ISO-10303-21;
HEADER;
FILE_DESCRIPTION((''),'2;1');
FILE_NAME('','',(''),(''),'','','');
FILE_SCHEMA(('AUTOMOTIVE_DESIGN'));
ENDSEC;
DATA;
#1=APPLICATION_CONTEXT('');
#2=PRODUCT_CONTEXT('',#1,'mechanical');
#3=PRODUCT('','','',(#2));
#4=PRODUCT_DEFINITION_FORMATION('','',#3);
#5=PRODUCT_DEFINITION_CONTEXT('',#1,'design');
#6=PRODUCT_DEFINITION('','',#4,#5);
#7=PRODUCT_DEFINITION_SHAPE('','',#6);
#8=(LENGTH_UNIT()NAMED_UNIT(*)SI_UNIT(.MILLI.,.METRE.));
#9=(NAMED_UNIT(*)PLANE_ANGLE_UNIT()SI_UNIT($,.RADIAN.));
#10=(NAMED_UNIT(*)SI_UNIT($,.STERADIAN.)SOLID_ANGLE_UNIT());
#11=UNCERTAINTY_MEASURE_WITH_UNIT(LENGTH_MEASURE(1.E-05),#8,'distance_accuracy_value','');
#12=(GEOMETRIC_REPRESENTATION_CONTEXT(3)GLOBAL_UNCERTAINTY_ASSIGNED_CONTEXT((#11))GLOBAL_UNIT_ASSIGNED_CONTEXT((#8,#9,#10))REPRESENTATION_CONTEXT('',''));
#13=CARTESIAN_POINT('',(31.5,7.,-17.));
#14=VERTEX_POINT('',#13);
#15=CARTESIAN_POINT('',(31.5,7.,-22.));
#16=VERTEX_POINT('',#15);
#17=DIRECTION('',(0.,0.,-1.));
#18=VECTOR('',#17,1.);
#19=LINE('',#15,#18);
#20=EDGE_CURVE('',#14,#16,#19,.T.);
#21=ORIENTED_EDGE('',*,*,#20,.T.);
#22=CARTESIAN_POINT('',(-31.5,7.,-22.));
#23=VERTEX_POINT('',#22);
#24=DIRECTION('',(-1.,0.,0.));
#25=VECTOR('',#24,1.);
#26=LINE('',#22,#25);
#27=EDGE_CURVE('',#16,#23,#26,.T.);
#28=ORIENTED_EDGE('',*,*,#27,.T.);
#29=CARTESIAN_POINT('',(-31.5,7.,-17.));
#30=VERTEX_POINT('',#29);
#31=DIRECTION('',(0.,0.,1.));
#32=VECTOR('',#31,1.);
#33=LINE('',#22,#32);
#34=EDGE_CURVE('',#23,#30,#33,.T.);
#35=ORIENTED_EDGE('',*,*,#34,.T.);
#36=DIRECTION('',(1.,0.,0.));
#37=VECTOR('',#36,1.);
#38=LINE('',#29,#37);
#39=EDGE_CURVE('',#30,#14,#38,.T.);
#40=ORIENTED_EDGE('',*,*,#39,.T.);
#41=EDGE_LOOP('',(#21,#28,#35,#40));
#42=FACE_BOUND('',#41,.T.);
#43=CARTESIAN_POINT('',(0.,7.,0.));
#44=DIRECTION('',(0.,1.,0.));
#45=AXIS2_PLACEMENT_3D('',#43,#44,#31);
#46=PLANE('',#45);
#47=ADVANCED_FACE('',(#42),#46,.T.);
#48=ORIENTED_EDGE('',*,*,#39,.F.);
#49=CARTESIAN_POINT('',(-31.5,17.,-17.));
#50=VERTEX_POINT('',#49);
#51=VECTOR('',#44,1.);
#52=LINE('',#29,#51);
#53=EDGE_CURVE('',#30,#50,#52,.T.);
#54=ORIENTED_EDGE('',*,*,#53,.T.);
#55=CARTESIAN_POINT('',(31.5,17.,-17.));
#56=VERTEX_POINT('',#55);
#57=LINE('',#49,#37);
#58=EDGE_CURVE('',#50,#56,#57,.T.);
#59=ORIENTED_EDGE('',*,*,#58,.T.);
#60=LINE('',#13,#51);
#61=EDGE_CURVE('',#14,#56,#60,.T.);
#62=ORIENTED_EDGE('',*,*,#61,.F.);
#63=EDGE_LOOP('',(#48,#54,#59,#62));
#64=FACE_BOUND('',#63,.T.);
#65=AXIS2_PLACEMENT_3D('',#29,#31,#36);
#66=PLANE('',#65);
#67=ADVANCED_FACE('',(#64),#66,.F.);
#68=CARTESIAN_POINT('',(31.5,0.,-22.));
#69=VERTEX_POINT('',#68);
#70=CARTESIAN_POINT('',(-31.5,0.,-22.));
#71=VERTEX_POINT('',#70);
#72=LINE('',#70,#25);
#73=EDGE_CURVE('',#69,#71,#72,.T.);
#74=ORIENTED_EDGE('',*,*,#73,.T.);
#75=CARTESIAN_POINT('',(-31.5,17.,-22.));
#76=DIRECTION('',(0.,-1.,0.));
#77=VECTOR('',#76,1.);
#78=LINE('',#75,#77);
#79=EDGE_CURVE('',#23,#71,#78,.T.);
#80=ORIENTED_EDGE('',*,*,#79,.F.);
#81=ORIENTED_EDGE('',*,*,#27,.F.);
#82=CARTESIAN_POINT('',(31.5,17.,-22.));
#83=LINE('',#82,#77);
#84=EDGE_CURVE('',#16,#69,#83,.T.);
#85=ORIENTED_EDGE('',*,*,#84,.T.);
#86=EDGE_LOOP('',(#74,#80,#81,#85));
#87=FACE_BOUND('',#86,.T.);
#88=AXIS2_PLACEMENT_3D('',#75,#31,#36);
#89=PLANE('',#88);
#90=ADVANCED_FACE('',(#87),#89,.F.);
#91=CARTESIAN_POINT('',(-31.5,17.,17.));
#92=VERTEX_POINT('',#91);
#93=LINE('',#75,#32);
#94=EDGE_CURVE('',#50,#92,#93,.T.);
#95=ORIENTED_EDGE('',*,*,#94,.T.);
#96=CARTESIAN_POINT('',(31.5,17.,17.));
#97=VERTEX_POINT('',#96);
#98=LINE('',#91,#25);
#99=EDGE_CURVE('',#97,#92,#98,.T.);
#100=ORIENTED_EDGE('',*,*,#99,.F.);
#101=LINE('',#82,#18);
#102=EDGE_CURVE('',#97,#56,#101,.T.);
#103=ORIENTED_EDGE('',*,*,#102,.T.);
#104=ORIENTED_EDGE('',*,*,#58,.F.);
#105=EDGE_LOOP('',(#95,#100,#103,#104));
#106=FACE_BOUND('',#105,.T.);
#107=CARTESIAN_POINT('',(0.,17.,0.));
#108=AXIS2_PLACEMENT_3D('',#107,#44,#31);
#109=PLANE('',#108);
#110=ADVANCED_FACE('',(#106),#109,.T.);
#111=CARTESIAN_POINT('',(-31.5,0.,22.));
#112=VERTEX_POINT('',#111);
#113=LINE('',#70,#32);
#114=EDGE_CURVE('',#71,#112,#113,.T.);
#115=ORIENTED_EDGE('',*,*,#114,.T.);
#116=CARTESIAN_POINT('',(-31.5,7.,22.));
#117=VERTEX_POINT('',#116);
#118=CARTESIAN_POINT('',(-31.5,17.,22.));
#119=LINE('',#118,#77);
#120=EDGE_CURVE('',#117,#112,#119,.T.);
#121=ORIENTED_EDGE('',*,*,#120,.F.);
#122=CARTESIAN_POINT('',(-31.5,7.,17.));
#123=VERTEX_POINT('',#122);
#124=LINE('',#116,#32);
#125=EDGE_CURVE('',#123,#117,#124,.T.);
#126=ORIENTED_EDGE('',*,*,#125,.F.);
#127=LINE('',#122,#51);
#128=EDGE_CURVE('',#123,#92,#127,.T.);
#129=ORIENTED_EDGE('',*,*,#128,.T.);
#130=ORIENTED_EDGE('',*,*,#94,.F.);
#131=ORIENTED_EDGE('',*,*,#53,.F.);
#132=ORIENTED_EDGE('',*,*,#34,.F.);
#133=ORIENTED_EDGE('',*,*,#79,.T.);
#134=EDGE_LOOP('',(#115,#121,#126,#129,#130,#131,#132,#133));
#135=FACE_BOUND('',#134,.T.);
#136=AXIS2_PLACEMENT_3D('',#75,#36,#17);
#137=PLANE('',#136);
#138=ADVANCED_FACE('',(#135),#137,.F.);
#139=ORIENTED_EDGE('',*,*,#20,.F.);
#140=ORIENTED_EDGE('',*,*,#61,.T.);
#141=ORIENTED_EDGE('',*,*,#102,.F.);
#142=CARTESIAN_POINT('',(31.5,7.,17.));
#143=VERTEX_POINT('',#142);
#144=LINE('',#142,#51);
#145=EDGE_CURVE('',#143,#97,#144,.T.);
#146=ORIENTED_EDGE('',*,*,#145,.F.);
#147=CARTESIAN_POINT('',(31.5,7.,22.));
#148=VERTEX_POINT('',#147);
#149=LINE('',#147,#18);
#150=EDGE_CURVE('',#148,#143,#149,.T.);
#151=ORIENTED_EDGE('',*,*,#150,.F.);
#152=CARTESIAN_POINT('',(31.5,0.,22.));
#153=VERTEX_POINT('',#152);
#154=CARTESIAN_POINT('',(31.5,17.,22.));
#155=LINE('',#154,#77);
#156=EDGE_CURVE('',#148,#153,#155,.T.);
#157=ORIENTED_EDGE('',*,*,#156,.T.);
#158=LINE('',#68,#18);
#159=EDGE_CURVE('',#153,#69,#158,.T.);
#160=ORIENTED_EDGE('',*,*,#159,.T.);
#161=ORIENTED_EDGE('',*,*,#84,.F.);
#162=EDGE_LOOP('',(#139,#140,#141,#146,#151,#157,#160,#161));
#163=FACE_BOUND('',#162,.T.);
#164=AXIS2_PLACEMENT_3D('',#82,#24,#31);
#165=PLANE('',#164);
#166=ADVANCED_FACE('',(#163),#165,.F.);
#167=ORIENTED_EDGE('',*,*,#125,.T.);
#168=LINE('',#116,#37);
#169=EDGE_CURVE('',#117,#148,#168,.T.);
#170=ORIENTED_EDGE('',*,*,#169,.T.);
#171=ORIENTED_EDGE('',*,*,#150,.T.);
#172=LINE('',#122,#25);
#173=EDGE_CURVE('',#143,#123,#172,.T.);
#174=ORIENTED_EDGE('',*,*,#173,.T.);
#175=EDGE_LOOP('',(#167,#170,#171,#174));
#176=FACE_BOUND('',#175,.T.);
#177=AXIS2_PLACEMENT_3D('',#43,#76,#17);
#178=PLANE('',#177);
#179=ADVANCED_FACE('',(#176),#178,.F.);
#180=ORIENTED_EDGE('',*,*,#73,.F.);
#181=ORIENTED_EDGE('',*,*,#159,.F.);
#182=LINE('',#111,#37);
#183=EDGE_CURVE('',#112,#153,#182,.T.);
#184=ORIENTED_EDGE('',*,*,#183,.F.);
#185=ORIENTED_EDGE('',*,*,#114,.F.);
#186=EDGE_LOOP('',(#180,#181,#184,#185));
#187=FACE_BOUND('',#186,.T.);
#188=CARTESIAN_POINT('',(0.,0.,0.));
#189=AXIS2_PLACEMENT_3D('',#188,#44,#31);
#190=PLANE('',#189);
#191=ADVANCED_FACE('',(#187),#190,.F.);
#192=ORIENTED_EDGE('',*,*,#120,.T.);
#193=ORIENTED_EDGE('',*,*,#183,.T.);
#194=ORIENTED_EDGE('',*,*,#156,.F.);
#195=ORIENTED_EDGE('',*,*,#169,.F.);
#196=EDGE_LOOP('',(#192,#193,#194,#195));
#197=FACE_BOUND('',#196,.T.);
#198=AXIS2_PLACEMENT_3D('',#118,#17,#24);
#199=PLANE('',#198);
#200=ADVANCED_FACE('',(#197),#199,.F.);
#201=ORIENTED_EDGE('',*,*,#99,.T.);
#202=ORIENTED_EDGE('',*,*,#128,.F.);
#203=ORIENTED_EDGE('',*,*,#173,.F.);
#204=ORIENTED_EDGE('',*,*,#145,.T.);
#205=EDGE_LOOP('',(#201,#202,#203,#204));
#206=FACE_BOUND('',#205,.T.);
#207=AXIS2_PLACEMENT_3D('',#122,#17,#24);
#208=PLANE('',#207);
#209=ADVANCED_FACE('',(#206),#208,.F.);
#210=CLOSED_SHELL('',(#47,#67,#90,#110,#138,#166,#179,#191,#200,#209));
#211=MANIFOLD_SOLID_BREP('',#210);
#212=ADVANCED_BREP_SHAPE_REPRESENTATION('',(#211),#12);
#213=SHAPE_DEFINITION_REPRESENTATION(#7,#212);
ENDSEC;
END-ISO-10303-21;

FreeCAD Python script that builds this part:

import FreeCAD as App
import Part
import Sketcher

V = App.Vector


def add_polygon(sketch, points):
    """Adds a closed chain of lines whose ends are joined by coincident constraints."""
    first, n = sketch.GeometryCount, len(points)
    for a, b in zip(points, points[1:] + points[:1]):
        sketch.addGeometry(Part.LineSegment(App.Vector(*a, 0), App.Vector(*b, 0)), False)
    for i in range(n):
        sketch.addConstraint(Sketcher.Constraint("Coincident", first + i, 2, first + (i + 1) % n, 1))

doc = App.newDocument("Part")
body = doc.addObject("PartDesign::Body", "Body")

# Sketch on XZ plane
sketch1 = doc.addObject("Sketcher::SketchObject", "Sketch")
body.addObject(sketch1)
sketch1.AttachmentSupport = (doc.XZ_Plane, [""])
sketch1.MapMode = "FlatFace"
add_polygon(sketch1, [(-32, -22), (-32, 22), (32, 22), (32, -22)])  # lines 0-3
sketch1.addConstraint([
    Sketcher.Constraint("Vertical", 0),
    Sketcher.Constraint("Horizontal", 1),
    Sketcher.Constraint("Vertical", 2),
    Sketcher.Constraint("Horizontal", 3),
    Sketcher.Constraint("Symmetric", 0, 2, 2, 2, -1, 1),
    Sketcher.Constraint("DistanceX", 1, 1, 1, 2, 63.0),
    Sketcher.Constraint("DistanceY", 0, 1, 0, 2, 44.0),
])
pad1 = doc.addObject("PartDesign::Pad", "Pad")
body.addObject(pad1)
pad1.Profile = sketch1
pad1.Length = 17
pad1.Reversed = True

# Sketch on XZ plane
sketch2 = doc.addObject("Sketcher::SketchObject", "Sketch001")
body.addObject(sketch2)
sketch2.AttachmentSupport = (doc.XZ_Plane, [""])
sketch2.MapMode = "FlatFace"
sketch2.AttachmentOffset = App.Placement(V(0, 0, -17), App.Rotation())
add_polygon(sketch2, [(-32, -22), (-32, -17), (32, -17), (32, -22)])  # lines 0-3
add_polygon(sketch2, [(-32, 17), (-32, 22), (32, 22), (32, 17)])  # lines 4-7
sketch2.addConstraint([
    Sketcher.Constraint("Vertical", 0),
    Sketcher.Constraint("Horizontal", 1),
    Sketcher.Constraint("Vertical", 2),
    Sketcher.Constraint("Horizontal", 3),
    Sketcher.Constraint("Vertical", 4),
    Sketcher.Constraint("Horizontal", 5),
    Sketcher.Constraint("Vertical", 6),
    Sketcher.Constraint("Horizontal", 7),
    Sketcher.Constraint("Symmetric", 2, 2, 4, 2, -1, 1),
    Sketcher.Constraint("Symmetric", 0, 2, 6, 2, -1, 1),
    Sketcher.Constraint("Vertical", 3, 2, 4, 2),
    Sketcher.Constraint("DistanceX", 1, 1, 1, 2, 63.0),
    Sketcher.Constraint("DistanceY", 0, 1, 0, 2, 5.0),
    Sketcher.Constraint("DistanceY", 0, 2, -1, 1, 17.0),
])
pocket1 = doc.addObject("PartDesign::Pocket", "Pocket")
body.addObject(pocket1)
pocket1.Profile = sketch2
pocket1.Length = 10
pocket1.Reversed = True

doc.recompute()
